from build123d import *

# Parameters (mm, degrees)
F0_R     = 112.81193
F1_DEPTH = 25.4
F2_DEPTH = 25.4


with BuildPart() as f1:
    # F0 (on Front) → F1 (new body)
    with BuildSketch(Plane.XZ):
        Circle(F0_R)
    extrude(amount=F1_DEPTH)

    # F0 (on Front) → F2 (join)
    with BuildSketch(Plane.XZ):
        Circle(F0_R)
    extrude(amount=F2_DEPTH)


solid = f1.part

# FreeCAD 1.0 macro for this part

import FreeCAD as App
import Part
import Sketcher
Q = App.Units.Quantity

doc = App.newDocument("Part")
body = doc.addObject("PartDesign::Body", "Body")

# Sketch on XZ plane
sketch1 = body.newObject("Sketcher::SketchObject", "Sketch")
sketch1.AttachmentSupport = (doc.getObject("XZ_Plane"), [""])
sketch1.MapMode = "FlatFace"
sketch1.addGeometry(Part.Circle(App.Vector(0, 0, 0), App.Vector(0, 0, 1), 113), False)
sketch1.addConstraint([
    Sketcher.Constraint("Coincident", 0, 3, -1, 1),
    Sketcher.Constraint("Diameter", 0, 225.62386),
])
pad1 = body.newObject("PartDesign::Pad", "Pad")
pad1.Profile = sketch1
pad1.Length = Q("1 in")

# Sketch on XZ plane
sketch2 = body.newObject("Sketcher::SketchObject", "Sketch001")
sketch2.AttachmentSupport = (doc.getObject("XZ_Plane"), [""])
sketch2.MapMode = "FlatFace"
sketch2.addGeometry(Part.Circle(App.Vector(0, 0, 0), App.Vector(0, 0, 1), 113), False)
sketch2.addConstraint([
    Sketcher.Constraint("Coincident", 0, 3, -1, 1),
    Sketcher.Constraint("Diameter", 0, 225.62386),
])
pad2 = body.newObject("PartDesign::Pad", "Pad001")
pad2.Profile = sketch2
pad2.Length = Q("1 in")

doc.recompute()
